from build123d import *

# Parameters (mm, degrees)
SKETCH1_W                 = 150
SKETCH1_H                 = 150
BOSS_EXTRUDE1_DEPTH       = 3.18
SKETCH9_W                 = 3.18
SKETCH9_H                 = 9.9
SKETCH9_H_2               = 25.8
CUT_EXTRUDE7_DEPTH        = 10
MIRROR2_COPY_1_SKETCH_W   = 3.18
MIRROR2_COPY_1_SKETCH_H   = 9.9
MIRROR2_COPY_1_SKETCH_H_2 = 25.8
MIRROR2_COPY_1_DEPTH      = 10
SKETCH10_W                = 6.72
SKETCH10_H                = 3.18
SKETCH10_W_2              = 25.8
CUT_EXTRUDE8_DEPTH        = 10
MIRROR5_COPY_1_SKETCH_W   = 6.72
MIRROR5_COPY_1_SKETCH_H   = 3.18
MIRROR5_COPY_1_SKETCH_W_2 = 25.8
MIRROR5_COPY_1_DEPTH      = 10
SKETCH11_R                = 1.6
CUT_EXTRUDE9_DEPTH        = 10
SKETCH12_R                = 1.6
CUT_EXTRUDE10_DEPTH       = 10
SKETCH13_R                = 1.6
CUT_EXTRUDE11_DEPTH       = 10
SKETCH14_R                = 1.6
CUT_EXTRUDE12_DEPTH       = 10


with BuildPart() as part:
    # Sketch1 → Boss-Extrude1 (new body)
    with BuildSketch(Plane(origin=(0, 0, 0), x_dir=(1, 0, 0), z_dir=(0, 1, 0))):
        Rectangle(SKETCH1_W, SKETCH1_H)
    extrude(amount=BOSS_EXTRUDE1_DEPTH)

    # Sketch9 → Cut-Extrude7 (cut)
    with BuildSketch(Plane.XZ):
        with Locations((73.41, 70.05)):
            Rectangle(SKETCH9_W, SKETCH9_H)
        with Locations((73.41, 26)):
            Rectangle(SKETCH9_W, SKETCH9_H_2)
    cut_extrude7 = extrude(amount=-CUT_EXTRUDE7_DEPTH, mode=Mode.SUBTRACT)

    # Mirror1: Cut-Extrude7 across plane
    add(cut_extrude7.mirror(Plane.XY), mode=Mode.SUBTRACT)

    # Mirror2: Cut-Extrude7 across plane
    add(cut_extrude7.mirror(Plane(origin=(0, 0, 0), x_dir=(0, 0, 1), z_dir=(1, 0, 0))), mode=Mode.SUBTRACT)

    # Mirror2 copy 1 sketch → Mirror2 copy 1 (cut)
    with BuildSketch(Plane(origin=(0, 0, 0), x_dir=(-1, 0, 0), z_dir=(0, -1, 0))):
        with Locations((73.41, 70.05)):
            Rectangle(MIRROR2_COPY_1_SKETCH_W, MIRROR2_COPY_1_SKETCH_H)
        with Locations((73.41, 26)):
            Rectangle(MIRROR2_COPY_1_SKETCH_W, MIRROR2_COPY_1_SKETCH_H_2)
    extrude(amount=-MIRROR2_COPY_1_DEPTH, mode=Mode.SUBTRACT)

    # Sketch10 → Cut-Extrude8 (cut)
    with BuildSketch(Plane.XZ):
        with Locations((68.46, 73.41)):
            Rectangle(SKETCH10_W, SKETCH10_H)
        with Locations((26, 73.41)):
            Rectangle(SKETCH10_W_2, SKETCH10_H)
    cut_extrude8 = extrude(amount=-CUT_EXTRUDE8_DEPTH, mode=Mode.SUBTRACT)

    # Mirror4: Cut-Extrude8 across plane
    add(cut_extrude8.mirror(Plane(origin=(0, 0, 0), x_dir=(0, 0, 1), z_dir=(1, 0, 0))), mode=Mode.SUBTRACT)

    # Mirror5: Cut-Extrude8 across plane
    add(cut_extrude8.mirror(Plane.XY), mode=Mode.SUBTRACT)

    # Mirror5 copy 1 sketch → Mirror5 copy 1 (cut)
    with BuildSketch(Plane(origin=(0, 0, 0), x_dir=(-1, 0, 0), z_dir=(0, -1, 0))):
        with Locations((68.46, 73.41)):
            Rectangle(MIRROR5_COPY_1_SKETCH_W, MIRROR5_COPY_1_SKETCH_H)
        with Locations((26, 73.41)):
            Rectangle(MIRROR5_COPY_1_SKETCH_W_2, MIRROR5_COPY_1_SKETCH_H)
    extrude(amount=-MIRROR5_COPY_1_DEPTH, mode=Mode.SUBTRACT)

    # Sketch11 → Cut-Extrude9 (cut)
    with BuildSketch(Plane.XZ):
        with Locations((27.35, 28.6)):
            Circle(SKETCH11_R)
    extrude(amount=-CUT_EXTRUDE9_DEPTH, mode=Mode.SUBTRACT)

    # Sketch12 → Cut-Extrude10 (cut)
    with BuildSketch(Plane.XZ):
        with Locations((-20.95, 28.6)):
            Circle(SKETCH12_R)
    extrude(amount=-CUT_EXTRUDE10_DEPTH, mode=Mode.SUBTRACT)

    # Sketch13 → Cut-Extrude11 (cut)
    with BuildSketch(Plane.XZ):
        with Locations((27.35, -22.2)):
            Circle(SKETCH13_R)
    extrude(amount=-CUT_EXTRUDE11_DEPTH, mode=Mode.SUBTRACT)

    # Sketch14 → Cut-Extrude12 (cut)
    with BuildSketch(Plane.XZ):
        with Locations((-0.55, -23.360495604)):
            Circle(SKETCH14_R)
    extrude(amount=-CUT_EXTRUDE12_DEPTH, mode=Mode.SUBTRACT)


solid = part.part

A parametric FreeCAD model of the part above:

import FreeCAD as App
import Part
import Sketcher
Q = App.Units.Quantity

doc = App.newDocument("Part")
params = doc.addObject("Spreadsheet::Sheet", "Params")
for row, (alias, value) in enumerate([
    ("sketch1_width", "150 mm"),
    ("pad1_length", "3.18 mm"),
    ("sketch2_height", "9.9 mm"),
    ("sketch2_height2", "25.8 mm"),
    ("sketch2_width", "3.18 mm"),
    ("pocket1_length", "10 mm"),
    ("sketch3_height", "9.9 mm"),
    ("sketch3_height2", "25.8 mm"),
    ("sketch3_width", "3.18 mm"),
    ("pocket2_length", "10 mm"),
    ("sketch4_width", "25.8 mm"),
    ("sketch4_width2", "6.72 mm"),
    ("sketch4_height", "3.18 mm"),
    ("pocket3_length", "10 mm"),
    ("sketch5_width", "25.8 mm"),
    ("sketch5_width2", "6.72 mm"),
    ("sketch5_height", "3.18 mm"),
    ("pocket4_length", "10 mm"),
    ("sketch6_diameter", "3.2 mm"),
    ("pocket5_length", "10 mm"),
    ("sketch7_diameter", "3.2 mm"),
    ("pocket6_length", "10 mm"),
    ("sketch8_diameter", "3.2 mm"),
    ("pocket7_length", "10 mm"),
    ("sketch9_diameter", "3.2 mm"),
    ("pocket8_length", "10 mm"),
], start=1):
    params.set(f"A{row}", alias)
    params.set(f"B{row}", "=" + value)
    params.setAlias(f"B{row}", alias)

body = doc.addObject("PartDesign::Body", "Body")

sketch1 = doc.addObject("Sketcher::SketchObject", "Sketch")
body.addObject(sketch1)
sketch1.AttachmentSupport = (doc.XZ_Plane, [""])
sketch1.MapMode = "FlatFace"
sketch1.addGeometry(Part.LineSegment(App.Vector(-75, -75, 0), App.Vector(-75, 75, 0)), False)
sketch1.addGeometry(Part.LineSegment(App.Vector(-75, 75, 0), App.Vector(75, 75, 0)), False)
sketch1.addGeometry(Part.LineSegment(App.Vector(75, 75, 0), App.Vector(75, -75, 0)), False)
sketch1.addGeometry(Part.LineSegment(App.Vector(75, -75, 0), App.Vector(-75, -75, 0)), False)
sketch1.addConstraint(Sketcher.Constraint("Coincident", 0, 2, 1, 1))
sketch1.addConstraint(Sketcher.Constraint("Coincident", 1, 2, 2, 1))
sketch1.addConstraint(Sketcher.Constraint("Coincident", 2, 2, 3, 1))
sketch1.addConstraint(Sketcher.Constraint("Coincident", 3, 2, 0, 1))
sketch1.addConstraint(Sketcher.Constraint("Vertical", 0))
sketch1.addConstraint(Sketcher.Constraint("Horizontal", 1))
sketch1.addConstraint(Sketcher.Constraint("Vertical", 2))
sketch1.addConstraint(Sketcher.Constraint("Horizontal", 3))
sketch1.addConstraint(Sketcher.Constraint("Symmetric", 0, 2, 2, 2, -1, 1))
sketch1.addConstraint(Sketcher.Constraint("Equal", 3, 0))
sketch1.addConstraint(Sketcher.Constraint("DistanceX", 1, 1, 1, 2, Q("150 mm")))
sketch1.setExpression("Constraints[10]", "Params.sketch1_width")
pad1 = doc.addObject("PartDesign::Pad", "Pad")
body.addObject(pad1)
pad1.Profile = sketch1
pad1.setExpression("Length", "Params.pad1_length")
pad1.Reversed = True

sketch2 = doc.addObject("Sketcher::SketchObject", "Sketch001")
body.addObject(sketch2)
sketch2.AttachmentSupport = (doc.XZ_Plane, [""])
sketch2.MapMode = "FlatFace"
sketch2.addGeometry(Part.LineSegment(App.Vector(71.8, 75, 0), App.Vector(71.8, 65.1, 0)), False)
sketch2.addGeometry(Part.LineSegment(App.Vector(71.8, 65.1, 0), App.Vector(75, 65.1, 0)), False)
sketch2.addGeometry(Part.LineSegment(App.Vector(75, 65.1, 0), App.Vector(75, 75, 0)), False)
sketch2.addGeometry(Part.LineSegment(App.Vector(75, 75, 0), App.Vector(71.8, 75, 0)), False)
sketch2.addGeometry(Part.LineSegment(App.Vector(71.8, 38.9, 0), App.Vector(71.8, 13.1, 0)), False)
sketch2.addGeometry(Part.LineSegment(App.Vector(71.8, 13.1, 0), App.Vector(75, 13.1, 0)), False)
sketch2.addGeometry(Part.LineSegment(App.Vector(75, 13.1, 0), App.Vector(75, 38.9, 0)), False)
sketch2.addGeometry(Part.LineSegment(App.Vector(75, 38.9, 0), App.Vector(71.8, 38.9, 0)), False)
sketch2.addConstraint(Sketcher.Constraint("Coincident", 0, 2, 1, 1))
sketch2.addConstraint(Sketcher.Constraint("Coincident", 1, 2, 2, 1))
sketch2.addConstraint(Sketcher.Constraint("Coincident", 2, 2, 3, 1))
sketch2.addConstraint(Sketcher.Constraint("Coincident", 3, 2, 0, 1))
sketch2.addConstraint(Sketcher.Constraint("Coincident", 4, 2, 5, 1))
sketch2.addConstraint(Sketcher.Constraint("Coincident", 5, 2, 6, 1))
sketch2.addConstraint(Sketcher.Constraint("Coincident", 6, 2, 7, 1))
sketch2.addConstraint(Sketcher.Constraint("Coincident", 7, 2, 4, 1))
sketch2.addConstraint(Sketcher.Constraint("Vertical", 0))
sketch2.addConstraint(Sketcher.Constraint("Horizontal", 1))
sketch2.addConstraint(Sketcher.Constraint("Vertical", 2))
sketch2.addConstraint(Sketcher.Constraint("Horizontal", 3))
sketch2.addConstraint(Sketcher.Constraint("Vertical", 4))
sketch2.addConstraint(Sketcher.Constraint("Horizontal", 5))
sketch2.addConstraint(Sketcher.Constraint("Vertical", 6))
sketch2.addConstraint(Sketcher.Constraint("Horizontal", 7))
sketch2.addConstraint(Sketcher.Constraint("Vertical", 3, 2, 4, 2))
sketch2.addConstraint(Sketcher.Constraint("Vertical", 2, 2, 5, 2))
sketch2.addConstraint(Sketcher.Constraint("DistanceY", 0, 2, 0, 1, Q("9.9 mm")))
sketch2.addConstraint(Sketcher.Constraint("DistanceY", 4, 2, 4, 1, Q("25.8 mm")))
sketch2.addConstraint(Sketcher.Constraint("DistanceX", -1, 1, 1, 2, Q("75 mm")))
sketch2.addConstraint(Sketcher.Constraint("DistanceY", -1, 1, 2, 2, Q("75 mm")))
sketch2.addConstraint(Sketcher.Constraint("DistanceY", 4, 2, 0, 2, Q("52 mm")))
sketch2.addConstraint(Sketcher.Constraint("DistanceX", 1, 1, 1, 2, Q("3.18 mm")))
sketch2.setExpression("Constraints[18]", "Params.sketch2_height")
sketch2.setExpression("Constraints[19]", "Params.sketch2_height2")
sketch2.setExpression("Constraints[23]", "Params.sketch2_width")
pocket1 = doc.addObject("PartDesign::Pocket", "Pocket")
body.addObject(pocket1)
pocket1.Profile = sketch2
pocket1.setExpression("Length", "Params.pocket1_length")
doc.recompute()

mirrored = doc.addObject("PartDesign::Mirrored", "Mirrored")
body.addObject(mirrored)
mirrored.Originals = [pocket1]
mirrored.MirrorPlane = (doc.XY_Plane, [""])
body.Tip = mirrored
doc.recompute()

mirrored2 = doc.addObject("PartDesign::Mirrored", "Mirrored001")
body.addObject(mirrored2)
mirrored2.Originals = [pocket1]
mirrored2.MirrorPlane = (doc.YZ_Plane, [""])
body.Tip = mirrored2

sketch3 = doc.addObject("Sketcher::SketchObject", "Sketch002")
body.addObject(sketch3)
sketch3.AttachmentSupport = (doc.XZ_Plane, [""])
sketch3.MapMode = "FlatFace"
sketch3.addGeometry(Part.LineSegment(App.Vector(-71.8, -75, 0), App.Vector(-71.8, -65.1, 0)), False)
sketch3.addGeometry(Part.LineSegment(App.Vector(-71.8, -65.1, 0), App.Vector(-75, -65.1, 0)), False)
sketch3.addGeometry(Part.LineSegment(App.Vector(-75, -65.1, 0), App.Vector(-75, -75, 0)), False)
sketch3.addGeometry(Part.LineSegment(App.Vector(-75, -75, 0), App.Vector(-71.8, -75, 0)), False)
sketch3.addGeometry(Part.LineSegment(App.Vector(-71.8, -38.9, 0), App.Vector(-71.8, -13.1, 0)), False)
sketch3.addGeometry(Part.LineSegment(App.Vector(-71.8, -13.1, 0), App.Vector(-75, -13.1, 0)), False)
sketch3.addGeometry(Part.LineSegment(App.Vector(-75, -13.1, 0), App.Vector(-75, -38.9, 0)), False)
sketch3.addGeometry(Part.LineSegment(App.Vector(-75, -38.9, 0), App.Vector(-71.8, -38.9, 0)), False)
sketch3.addConstraint(Sketcher.Constraint("Coincident", 0, 2, 1, 1))
sketch3.addConstraint(Sketcher.Constraint("Coincident", 1, 2, 2, 1))
sketch3.addConstraint(Sketcher.Constraint("Coincident", 2, 2, 3, 1))
sketch3.addConstraint(Sketcher.Constraint("Coincident", 3, 2, 0, 1))
sketch3.addConstraint(Sketcher.Constraint("Coincident", 4, 2, 5, 1))
sketch3.addConstraint(Sketcher.Constraint("Coincident", 5, 2, 6, 1))
sketch3.addConstraint(Sketcher.Constraint("Coincident", 6, 2, 7, 1))
sketch3.addConstraint(Sketcher.Constraint("Coincident", 7, 2, 4, 1))
sketch3.addConstraint(Sketcher.Constraint("Vertical", 0))
sketch3.addConstraint(Sketcher.Constraint("Horizontal", 1))
sketch3.addConstraint(Sketcher.Constraint("Vertical", 2))
sketch3.addConstraint(Sketcher.Constraint("Horizontal", 3))
sketch3.addConstraint(Sketcher.Constraint("Vertical", 4))
sketch3.addConstraint(Sketcher.Constraint("Horizontal", 5))
sketch3.addConstraint(Sketcher.Constraint("Vertical", 6))
sketch3.addConstraint(Sketcher.Constraint("Horizontal", 7))
sketch3.addConstraint(Sketcher.Constraint("Vertical", 3, 2, 4, 2))
sketch3.addConstraint(Sketcher.Constraint("Vertical", 2, 2, 5, 2))
sketch3.addConstraint(Sketcher.Constraint("DistanceY", 0, 1, 0, 2, Q("9.9 mm")))
sketch3.addConstraint(Sketcher.Constraint("DistanceY", 4, 1, 4, 2, Q("25.8 mm")))
sketch3.addConstraint(Sketcher.Constraint("DistanceX", 1, 2, -1, 1, Q("75 mm")))
sketch3.addConstraint(Sketcher.Constraint("DistanceY", 2, 2, -1, 1, Q("75 mm")))
sketch3.addConstraint(Sketcher.Constraint("DistanceY", 0, 2, 4, 2, Q("52 mm")))
sketch3.addConstraint(Sketcher.Constraint("DistanceX", 1, 2, 1, 1, Q("3.18 mm")))
sketch3.setExpression("Constraints[18]", "Params.sketch3_height")
sketch3.setExpression("Constraints[19]", "Params.sketch3_height2")
sketch3.setExpression("Constraints[23]", "Params.sketch3_width")
pocket2 = doc.addObject("PartDesign::Pocket", "Pocket001")
body.addObject(pocket2)
pocket2.Profile = sketch3
pocket2.setExpression("Length", "Params.pocket2_length")

sketch4 = doc.addObject("Sketcher::SketchObject", "Sketch003")
body.addObject(sketch4)
sketch4.AttachmentSupport = (doc.XZ_Plane, [""])
sketch4.MapMode = "FlatFace"
sketch4.addGeometry(Part.LineSegment(App.Vector(65.1, 75, 0), App.Vector(65.1, 71.8, 0)), False)
sketch4.addGeometry(Part.LineSegment(App.Vector(65.1, 71.8, 0), App.Vector(71.8, 71.8, 0)), False)
sketch4.addGeometry(Part.LineSegment(App.Vector(71.8, 71.8, 0), App.Vector(71.8, 75, 0)), False)
sketch4.addGeometry(Part.LineSegment(App.Vector(71.8, 75, 0), App.Vector(65.1, 75, 0)), False)
sketch4.addGeometry(Part.LineSegment(App.Vector(13.1, 75, 0), App.Vector(13.1, 71.8, 0)), False)
sketch4.addGeometry(Part.LineSegment(App.Vector(13.1, 71.8, 0), App.Vector(38.9, 71.8, 0)), False)
sketch4.addGeometry(Part.LineSegment(App.Vector(38.9, 71.8, 0), App.Vector(38.9, 75, 0)), False)
sketch4.addGeometry(Part.LineSegment(App.Vector(38.9, 75, 0), App.Vector(13.1, 75, 0)), False)
sketch4.addConstraint(Sketcher.Constraint("Coincident", 0, 2, 1, 1))
sketch4.addConstraint(Sketcher.Constraint("Coincident", 1, 2, 2, 1))
sketch4.addConstraint(Sketcher.Constraint("Coincident", 2, 2, 3, 1))
sketch4.addConstraint(Sketcher.Constraint("Coincident", 3, 2, 0, 1))
sketch4.addConstraint(Sketcher.Constraint("Coincident", 4, 2, 5, 1))
sketch4.addConstraint(Sketcher.Constraint("Coincident", 5, 2, 6, 1))
sketch4.addConstraint(Sketcher.Constraint("Coincident", 6, 2, 7, 1))
sketch4.addConstraint(Sketcher.Constraint("Coincident", 7, 2, 4, 1))
sketch4.addConstraint(Sketcher.Constraint("Vertical", 0))
sketch4.addConstraint(Sketcher.Constraint("Horizontal", 1))
sketch4.addConstraint(Sketcher.Constraint("Vertical", 2))
sketch4.addConstraint(Sketcher.Constraint("Horizontal", 3))
sketch4.addConstraint(Sketcher.Constraint("Vertical", 4))
sketch4.addConstraint(Sketcher.Constraint("Horizontal", 5))
sketch4.addConstraint(Sketcher.Constraint("Vertical", 6))
sketch4.addConstraint(Sketcher.Constraint("Horizontal", 7))
sketch4.addConstraint(Sketcher.Constraint("Horizontal", 1, 2, 4, 2))
sketch4.addConstraint(Sketcher.Constraint("Horizontal", 3, 2, 6, 2))
sketch4.addConstraint(Sketcher.Constraint("DistanceX", 5, 1, 5, 2, Q("25.8 mm")))
sketch4.addConstraint(Sketcher.Constraint("DistanceY", -1, 1, 2, 2, Q("75 mm")))
sketch4.addConstraint(Sketcher.Constraint("DistanceX", 4, 2, 0, 2, Q("52 mm")))
sketch4.addConstraint(Sketcher.Constraint("DistanceX", 1, 1, 1, 2, Q("6.72 mm")))
sketch4.addConstraint(Sketcher.Constraint("DistanceY", 0, 2, 0, 1, Q("3.18 mm")))
sketch4.addConstraint(Sketcher.Constraint("DistanceX", -1, 1, 0, 2, Q("65.1 mm")))
sketch4.setExpression("Constraints[18]", "Params.sketch4_width")
sketch4.setExpression("Constraints[21]", "Params.sketch4_width2")
sketch4.setExpression("Constraints[22]", "Params.sketch4_height")
pocket3 = doc.addObject("PartDesign::Pocket", "Pocket002")
body.addObject(pocket3)
pocket3.Profile = sketch4
pocket3.setExpression("Length", "Params.pocket3_length")
doc.recompute()

mirrored3 = doc.addObject("PartDesign::Mirrored", "Mirrored002")
body.addObject(mirrored3)
mirrored3.Originals = [pocket3]
mirrored3.MirrorPlane = (doc.YZ_Plane, [""])
body.Tip = mirrored3
doc.recompute()

mirrored4 = doc.addObject("PartDesign::Mirrored", "Mirrored003")
body.addObject(mirrored4)
mirrored4.Originals = [pocket3]
mirrored4.MirrorPlane = (doc.XY_Plane, [""])
body.Tip = mirrored4

sketch5 = doc.addObject("Sketcher::SketchObject", "Sketch004")
body.addObject(sketch5)
sketch5.AttachmentSupport = (doc.XZ_Plane, [""])
sketch5.MapMode = "FlatFace"
sketch5.addGeometry(Part.LineSegment(App.Vector(-65.1, -75, 0), App.Vector(-65.1, -71.8, 0)), False)
sketch5.addGeometry(Part.LineSegment(App.Vector(-65.1, -71.8, 0), App.Vector(-71.8, -71.8, 0)), False)
sketch5.addGeometry(Part.LineSegment(App.Vector(-71.8, -71.8, 0), App.Vector(-71.8, -75, 0)), False)
sketch5.addGeometry(Part.LineSegment(App.Vector(-71.8, -75, 0), App.Vector(-65.1, -75, 0)), False)
sketch5.addGeometry(Part.LineSegment(App.Vector(-13.1, -75, 0), App.Vector(-13.1, -71.8, 0)), False)
sketch5.addGeometry(Part.LineSegment(App.Vector(-13.1, -71.8, 0), App.Vector(-38.9, -71.8, 0)), False)
sketch5.addGeometry(Part.LineSegment(App.Vector(-38.9, -71.8, 0), App.Vector(-38.9, -75, 0)), False)
sketch5.addGeometry(Part.LineSegment(App.Vector(-38.9, -75, 0), App.Vector(-13.1, -75, 0)), False)
sketch5.addConstraint(Sketcher.Constraint("Coincident", 0, 2, 1, 1))
sketch5.addConstraint(Sketcher.Constraint("Coincident", 1, 2, 2, 1))
sketch5.addConstraint(Sketcher.Constraint("Coincident", 2, 2, 3, 1))
sketch5.addConstraint(Sketcher.Constraint("Coincident", 3, 2, 0, 1))
sketch5.addConstraint(Sketcher.Constraint("Coincident", 4, 2, 5, 1))
sketch5.addConstraint(Sketcher.Constraint("Coincident", 5, 2, 6, 1))
sketch5.addConstraint(Sketcher.Constraint("Coincident", 6, 2, 7, 1))
sketch5.addConstraint(Sketcher.Constraint("Coincident", 7, 2, 4, 1))
sketch5.addConstraint(Sketcher.Constraint("Vertical", 0))
sketch5.addConstraint(Sketcher.Constraint("Horizontal", 1))
sketch5.addConstraint(Sketcher.Constraint("Vertical", 2))
sketch5.addConstraint(Sketcher.Constraint("Horizontal", 3))
sketch5.addConstraint(Sketcher.Constraint("Vertical", 4))
sketch5.addConstraint(Sketcher.Constraint("Horizontal", 5))
sketch5.addConstraint(Sketcher.Constraint("Vertical", 6))
sketch5.addConstraint(Sketcher.Constraint("Horizontal", 7))
sketch5.addConstraint(Sketcher.Constraint("Horizontal", 1, 2, 4, 2))
sketch5.addConstraint(Sketcher.Constraint("Horizontal", 3, 2, 6, 2))
sketch5.addConstraint(Sketcher.Constraint("DistanceX", 5, 2, 5, 1, Q("25.8 mm")))
sketch5.addConstraint(Sketcher.Constraint("DistanceY", 2, 2, -1, 1, Q("75 mm")))
sketch5.addConstraint(Sketcher.Constraint("DistanceX", 0, 2, 4, 2, Q("52 mm")))
sketch5.addConstraint(Sketcher.Constraint("DistanceX", 1, 2, 1, 1, Q("6.72 mm")))
sketch5.addConstraint(Sketcher.Constraint("DistanceY", 0, 1, 0, 2, Q("3.18 mm")))
sketch5.addConstraint(Sketcher.Constraint("DistanceX", 0, 2, -1, 1, Q("65.1 mm")))
sketch5.setExpression("Constraints[18]", "Params.sketch5_width")
sketch5.setExpression("Constraints[21]", "Params.sketch5_width2")
sketch5.setExpression("Constraints[22]", "Params.sketch5_height")
pocket4 = doc.addObject("PartDesign::Pocket", "Pocket003")
body.addObject(pocket4)
pocket4.Profile = sketch5
pocket4.setExpression("Length", "Params.pocket4_length")

sketch6 = doc.addObject("Sketcher::SketchObject", "Sketch005")
body.addObject(sketch6)
sketch6.AttachmentSupport = (doc.XZ_Plane, [""])
sketch6.MapMode = "FlatFace"
sketch6.addGeometry(Part.Circle(App.Vector(27.4, 28.6, 0), App.Vector(0, 0, 1), 1.6), False)
sketch6.addConstraint(Sketcher.Constraint("Diameter", 0, Q("3.2 mm")))
sketch6.addConstraint(Sketcher.Constraint("DistanceY", -1, 1, 0, 3, Q("28.6 mm")))
sketch6.addConstraint(Sketcher.Constraint("DistanceX", -1, 1, 0, 3, Q("27.35 mm")))
sketch6.setExpression("Constraints[0]", "Params.sketch6_diameter")
pocket5 = doc.addObject("PartDesign::Pocket", "Pocket004")
body.addObject(pocket5)
pocket5.Profile = sketch6
pocket5.setExpression("Length", "Params.pocket5_length")

sketch7 = doc.addObject("Sketcher::SketchObject", "Sketch006")
body.addObject(sketch7)
sketch7.AttachmentSupport = (doc.XZ_Plane, [""])
sketch7.MapMode = "FlatFace"
sketch7.addGeometry(Part.Circle(App.Vector(-20.9, 28.6, 0), App.Vector(0, 0, 1), 1.6), False)
sketch7.addConstraint(Sketcher.Constraint("Diameter", 0, Q("3.2 mm")))
sketch7.addConstraint(Sketcher.Constraint("DistanceY", -1, 1, 0, 3, Q("28.6 mm")))
sketch7.addConstraint(Sketcher.Constraint("DistanceX", 0, 3, -1, 1, Q("20.95 mm")))
sketch7.setExpression("Constraints[0]", "Params.sketch7_diameter")
pocket6 = doc.addObject("PartDesign::Pocket", "Pocket005")
body.addObject(pocket6)
pocket6.Profile = sketch7
pocket6.setExpression("Length", "Params.pocket6_length")

sketch8 = doc.addObject("Sketcher::SketchObject", "Sketch007")
body.addObject(sketch8)
sketch8.AttachmentSupport = (doc.XZ_Plane, [""])
sketch8.MapMode = "FlatFace"
sketch8.addGeometry(Part.Circle(App.Vector(27.4, -22.2, 0), App.Vector(0, 0, 1), 1.6), False)
sketch8.addConstraint(Sketcher.Constraint("Diameter", 0, Q("3.2 mm")))
sketch8.addConstraint(Sketcher.Constraint("DistanceY", 0, 3, -1, 1, Q("22.2 mm")))
sketch8.addConstraint(Sketcher.Constraint("DistanceX", -1, 1, 0, 3, Q("27.35 mm")))
sketch8.setExpression("Constraints[0]", "Params.sketch8_diameter")
pocket7 = doc.addObject("PartDesign::Pocket", "Pocket006")
body.addObject(pocket7)
pocket7.Profile = sketch8
pocket7.setExpression("Length", "Params.pocket7_length")

sketch9 = doc.addObject("Sketcher::SketchObject", "Sketch008")
body.addObject(sketch9)
sketch9.AttachmentSupport = (doc.XZ_Plane, [""])
sketch9.MapMode = "FlatFace"
sketch9.addGeometry(Part.Circle(App.Vector(-0.6, -23.4, 0), App.Vector(0, 0, 1), 1.6), False)
sketch9.addConstraint(Sketcher.Constraint("Diameter", 0, Q("3.2 mm")))
sketch9.addConstraint(Sketcher.Constraint("DistanceX", 0, 3, -1, 1, Q("0.55 mm")))
sketch9.addConstraint(Sketcher.Constraint("DistanceY", 0, 3, -1, 1, Q("23.360496 mm")))
sketch9.setExpression("Constraints[0]", "Params.sketch9_diameter")
pocket8 = doc.addObject("PartDesign::Pocket", "Pocket007")
body.addObject(pocket8)
pocket8.Profile = sketch9
pocket8.setExpression("Length", "Params.pocket8_length")

doc.recompute()
